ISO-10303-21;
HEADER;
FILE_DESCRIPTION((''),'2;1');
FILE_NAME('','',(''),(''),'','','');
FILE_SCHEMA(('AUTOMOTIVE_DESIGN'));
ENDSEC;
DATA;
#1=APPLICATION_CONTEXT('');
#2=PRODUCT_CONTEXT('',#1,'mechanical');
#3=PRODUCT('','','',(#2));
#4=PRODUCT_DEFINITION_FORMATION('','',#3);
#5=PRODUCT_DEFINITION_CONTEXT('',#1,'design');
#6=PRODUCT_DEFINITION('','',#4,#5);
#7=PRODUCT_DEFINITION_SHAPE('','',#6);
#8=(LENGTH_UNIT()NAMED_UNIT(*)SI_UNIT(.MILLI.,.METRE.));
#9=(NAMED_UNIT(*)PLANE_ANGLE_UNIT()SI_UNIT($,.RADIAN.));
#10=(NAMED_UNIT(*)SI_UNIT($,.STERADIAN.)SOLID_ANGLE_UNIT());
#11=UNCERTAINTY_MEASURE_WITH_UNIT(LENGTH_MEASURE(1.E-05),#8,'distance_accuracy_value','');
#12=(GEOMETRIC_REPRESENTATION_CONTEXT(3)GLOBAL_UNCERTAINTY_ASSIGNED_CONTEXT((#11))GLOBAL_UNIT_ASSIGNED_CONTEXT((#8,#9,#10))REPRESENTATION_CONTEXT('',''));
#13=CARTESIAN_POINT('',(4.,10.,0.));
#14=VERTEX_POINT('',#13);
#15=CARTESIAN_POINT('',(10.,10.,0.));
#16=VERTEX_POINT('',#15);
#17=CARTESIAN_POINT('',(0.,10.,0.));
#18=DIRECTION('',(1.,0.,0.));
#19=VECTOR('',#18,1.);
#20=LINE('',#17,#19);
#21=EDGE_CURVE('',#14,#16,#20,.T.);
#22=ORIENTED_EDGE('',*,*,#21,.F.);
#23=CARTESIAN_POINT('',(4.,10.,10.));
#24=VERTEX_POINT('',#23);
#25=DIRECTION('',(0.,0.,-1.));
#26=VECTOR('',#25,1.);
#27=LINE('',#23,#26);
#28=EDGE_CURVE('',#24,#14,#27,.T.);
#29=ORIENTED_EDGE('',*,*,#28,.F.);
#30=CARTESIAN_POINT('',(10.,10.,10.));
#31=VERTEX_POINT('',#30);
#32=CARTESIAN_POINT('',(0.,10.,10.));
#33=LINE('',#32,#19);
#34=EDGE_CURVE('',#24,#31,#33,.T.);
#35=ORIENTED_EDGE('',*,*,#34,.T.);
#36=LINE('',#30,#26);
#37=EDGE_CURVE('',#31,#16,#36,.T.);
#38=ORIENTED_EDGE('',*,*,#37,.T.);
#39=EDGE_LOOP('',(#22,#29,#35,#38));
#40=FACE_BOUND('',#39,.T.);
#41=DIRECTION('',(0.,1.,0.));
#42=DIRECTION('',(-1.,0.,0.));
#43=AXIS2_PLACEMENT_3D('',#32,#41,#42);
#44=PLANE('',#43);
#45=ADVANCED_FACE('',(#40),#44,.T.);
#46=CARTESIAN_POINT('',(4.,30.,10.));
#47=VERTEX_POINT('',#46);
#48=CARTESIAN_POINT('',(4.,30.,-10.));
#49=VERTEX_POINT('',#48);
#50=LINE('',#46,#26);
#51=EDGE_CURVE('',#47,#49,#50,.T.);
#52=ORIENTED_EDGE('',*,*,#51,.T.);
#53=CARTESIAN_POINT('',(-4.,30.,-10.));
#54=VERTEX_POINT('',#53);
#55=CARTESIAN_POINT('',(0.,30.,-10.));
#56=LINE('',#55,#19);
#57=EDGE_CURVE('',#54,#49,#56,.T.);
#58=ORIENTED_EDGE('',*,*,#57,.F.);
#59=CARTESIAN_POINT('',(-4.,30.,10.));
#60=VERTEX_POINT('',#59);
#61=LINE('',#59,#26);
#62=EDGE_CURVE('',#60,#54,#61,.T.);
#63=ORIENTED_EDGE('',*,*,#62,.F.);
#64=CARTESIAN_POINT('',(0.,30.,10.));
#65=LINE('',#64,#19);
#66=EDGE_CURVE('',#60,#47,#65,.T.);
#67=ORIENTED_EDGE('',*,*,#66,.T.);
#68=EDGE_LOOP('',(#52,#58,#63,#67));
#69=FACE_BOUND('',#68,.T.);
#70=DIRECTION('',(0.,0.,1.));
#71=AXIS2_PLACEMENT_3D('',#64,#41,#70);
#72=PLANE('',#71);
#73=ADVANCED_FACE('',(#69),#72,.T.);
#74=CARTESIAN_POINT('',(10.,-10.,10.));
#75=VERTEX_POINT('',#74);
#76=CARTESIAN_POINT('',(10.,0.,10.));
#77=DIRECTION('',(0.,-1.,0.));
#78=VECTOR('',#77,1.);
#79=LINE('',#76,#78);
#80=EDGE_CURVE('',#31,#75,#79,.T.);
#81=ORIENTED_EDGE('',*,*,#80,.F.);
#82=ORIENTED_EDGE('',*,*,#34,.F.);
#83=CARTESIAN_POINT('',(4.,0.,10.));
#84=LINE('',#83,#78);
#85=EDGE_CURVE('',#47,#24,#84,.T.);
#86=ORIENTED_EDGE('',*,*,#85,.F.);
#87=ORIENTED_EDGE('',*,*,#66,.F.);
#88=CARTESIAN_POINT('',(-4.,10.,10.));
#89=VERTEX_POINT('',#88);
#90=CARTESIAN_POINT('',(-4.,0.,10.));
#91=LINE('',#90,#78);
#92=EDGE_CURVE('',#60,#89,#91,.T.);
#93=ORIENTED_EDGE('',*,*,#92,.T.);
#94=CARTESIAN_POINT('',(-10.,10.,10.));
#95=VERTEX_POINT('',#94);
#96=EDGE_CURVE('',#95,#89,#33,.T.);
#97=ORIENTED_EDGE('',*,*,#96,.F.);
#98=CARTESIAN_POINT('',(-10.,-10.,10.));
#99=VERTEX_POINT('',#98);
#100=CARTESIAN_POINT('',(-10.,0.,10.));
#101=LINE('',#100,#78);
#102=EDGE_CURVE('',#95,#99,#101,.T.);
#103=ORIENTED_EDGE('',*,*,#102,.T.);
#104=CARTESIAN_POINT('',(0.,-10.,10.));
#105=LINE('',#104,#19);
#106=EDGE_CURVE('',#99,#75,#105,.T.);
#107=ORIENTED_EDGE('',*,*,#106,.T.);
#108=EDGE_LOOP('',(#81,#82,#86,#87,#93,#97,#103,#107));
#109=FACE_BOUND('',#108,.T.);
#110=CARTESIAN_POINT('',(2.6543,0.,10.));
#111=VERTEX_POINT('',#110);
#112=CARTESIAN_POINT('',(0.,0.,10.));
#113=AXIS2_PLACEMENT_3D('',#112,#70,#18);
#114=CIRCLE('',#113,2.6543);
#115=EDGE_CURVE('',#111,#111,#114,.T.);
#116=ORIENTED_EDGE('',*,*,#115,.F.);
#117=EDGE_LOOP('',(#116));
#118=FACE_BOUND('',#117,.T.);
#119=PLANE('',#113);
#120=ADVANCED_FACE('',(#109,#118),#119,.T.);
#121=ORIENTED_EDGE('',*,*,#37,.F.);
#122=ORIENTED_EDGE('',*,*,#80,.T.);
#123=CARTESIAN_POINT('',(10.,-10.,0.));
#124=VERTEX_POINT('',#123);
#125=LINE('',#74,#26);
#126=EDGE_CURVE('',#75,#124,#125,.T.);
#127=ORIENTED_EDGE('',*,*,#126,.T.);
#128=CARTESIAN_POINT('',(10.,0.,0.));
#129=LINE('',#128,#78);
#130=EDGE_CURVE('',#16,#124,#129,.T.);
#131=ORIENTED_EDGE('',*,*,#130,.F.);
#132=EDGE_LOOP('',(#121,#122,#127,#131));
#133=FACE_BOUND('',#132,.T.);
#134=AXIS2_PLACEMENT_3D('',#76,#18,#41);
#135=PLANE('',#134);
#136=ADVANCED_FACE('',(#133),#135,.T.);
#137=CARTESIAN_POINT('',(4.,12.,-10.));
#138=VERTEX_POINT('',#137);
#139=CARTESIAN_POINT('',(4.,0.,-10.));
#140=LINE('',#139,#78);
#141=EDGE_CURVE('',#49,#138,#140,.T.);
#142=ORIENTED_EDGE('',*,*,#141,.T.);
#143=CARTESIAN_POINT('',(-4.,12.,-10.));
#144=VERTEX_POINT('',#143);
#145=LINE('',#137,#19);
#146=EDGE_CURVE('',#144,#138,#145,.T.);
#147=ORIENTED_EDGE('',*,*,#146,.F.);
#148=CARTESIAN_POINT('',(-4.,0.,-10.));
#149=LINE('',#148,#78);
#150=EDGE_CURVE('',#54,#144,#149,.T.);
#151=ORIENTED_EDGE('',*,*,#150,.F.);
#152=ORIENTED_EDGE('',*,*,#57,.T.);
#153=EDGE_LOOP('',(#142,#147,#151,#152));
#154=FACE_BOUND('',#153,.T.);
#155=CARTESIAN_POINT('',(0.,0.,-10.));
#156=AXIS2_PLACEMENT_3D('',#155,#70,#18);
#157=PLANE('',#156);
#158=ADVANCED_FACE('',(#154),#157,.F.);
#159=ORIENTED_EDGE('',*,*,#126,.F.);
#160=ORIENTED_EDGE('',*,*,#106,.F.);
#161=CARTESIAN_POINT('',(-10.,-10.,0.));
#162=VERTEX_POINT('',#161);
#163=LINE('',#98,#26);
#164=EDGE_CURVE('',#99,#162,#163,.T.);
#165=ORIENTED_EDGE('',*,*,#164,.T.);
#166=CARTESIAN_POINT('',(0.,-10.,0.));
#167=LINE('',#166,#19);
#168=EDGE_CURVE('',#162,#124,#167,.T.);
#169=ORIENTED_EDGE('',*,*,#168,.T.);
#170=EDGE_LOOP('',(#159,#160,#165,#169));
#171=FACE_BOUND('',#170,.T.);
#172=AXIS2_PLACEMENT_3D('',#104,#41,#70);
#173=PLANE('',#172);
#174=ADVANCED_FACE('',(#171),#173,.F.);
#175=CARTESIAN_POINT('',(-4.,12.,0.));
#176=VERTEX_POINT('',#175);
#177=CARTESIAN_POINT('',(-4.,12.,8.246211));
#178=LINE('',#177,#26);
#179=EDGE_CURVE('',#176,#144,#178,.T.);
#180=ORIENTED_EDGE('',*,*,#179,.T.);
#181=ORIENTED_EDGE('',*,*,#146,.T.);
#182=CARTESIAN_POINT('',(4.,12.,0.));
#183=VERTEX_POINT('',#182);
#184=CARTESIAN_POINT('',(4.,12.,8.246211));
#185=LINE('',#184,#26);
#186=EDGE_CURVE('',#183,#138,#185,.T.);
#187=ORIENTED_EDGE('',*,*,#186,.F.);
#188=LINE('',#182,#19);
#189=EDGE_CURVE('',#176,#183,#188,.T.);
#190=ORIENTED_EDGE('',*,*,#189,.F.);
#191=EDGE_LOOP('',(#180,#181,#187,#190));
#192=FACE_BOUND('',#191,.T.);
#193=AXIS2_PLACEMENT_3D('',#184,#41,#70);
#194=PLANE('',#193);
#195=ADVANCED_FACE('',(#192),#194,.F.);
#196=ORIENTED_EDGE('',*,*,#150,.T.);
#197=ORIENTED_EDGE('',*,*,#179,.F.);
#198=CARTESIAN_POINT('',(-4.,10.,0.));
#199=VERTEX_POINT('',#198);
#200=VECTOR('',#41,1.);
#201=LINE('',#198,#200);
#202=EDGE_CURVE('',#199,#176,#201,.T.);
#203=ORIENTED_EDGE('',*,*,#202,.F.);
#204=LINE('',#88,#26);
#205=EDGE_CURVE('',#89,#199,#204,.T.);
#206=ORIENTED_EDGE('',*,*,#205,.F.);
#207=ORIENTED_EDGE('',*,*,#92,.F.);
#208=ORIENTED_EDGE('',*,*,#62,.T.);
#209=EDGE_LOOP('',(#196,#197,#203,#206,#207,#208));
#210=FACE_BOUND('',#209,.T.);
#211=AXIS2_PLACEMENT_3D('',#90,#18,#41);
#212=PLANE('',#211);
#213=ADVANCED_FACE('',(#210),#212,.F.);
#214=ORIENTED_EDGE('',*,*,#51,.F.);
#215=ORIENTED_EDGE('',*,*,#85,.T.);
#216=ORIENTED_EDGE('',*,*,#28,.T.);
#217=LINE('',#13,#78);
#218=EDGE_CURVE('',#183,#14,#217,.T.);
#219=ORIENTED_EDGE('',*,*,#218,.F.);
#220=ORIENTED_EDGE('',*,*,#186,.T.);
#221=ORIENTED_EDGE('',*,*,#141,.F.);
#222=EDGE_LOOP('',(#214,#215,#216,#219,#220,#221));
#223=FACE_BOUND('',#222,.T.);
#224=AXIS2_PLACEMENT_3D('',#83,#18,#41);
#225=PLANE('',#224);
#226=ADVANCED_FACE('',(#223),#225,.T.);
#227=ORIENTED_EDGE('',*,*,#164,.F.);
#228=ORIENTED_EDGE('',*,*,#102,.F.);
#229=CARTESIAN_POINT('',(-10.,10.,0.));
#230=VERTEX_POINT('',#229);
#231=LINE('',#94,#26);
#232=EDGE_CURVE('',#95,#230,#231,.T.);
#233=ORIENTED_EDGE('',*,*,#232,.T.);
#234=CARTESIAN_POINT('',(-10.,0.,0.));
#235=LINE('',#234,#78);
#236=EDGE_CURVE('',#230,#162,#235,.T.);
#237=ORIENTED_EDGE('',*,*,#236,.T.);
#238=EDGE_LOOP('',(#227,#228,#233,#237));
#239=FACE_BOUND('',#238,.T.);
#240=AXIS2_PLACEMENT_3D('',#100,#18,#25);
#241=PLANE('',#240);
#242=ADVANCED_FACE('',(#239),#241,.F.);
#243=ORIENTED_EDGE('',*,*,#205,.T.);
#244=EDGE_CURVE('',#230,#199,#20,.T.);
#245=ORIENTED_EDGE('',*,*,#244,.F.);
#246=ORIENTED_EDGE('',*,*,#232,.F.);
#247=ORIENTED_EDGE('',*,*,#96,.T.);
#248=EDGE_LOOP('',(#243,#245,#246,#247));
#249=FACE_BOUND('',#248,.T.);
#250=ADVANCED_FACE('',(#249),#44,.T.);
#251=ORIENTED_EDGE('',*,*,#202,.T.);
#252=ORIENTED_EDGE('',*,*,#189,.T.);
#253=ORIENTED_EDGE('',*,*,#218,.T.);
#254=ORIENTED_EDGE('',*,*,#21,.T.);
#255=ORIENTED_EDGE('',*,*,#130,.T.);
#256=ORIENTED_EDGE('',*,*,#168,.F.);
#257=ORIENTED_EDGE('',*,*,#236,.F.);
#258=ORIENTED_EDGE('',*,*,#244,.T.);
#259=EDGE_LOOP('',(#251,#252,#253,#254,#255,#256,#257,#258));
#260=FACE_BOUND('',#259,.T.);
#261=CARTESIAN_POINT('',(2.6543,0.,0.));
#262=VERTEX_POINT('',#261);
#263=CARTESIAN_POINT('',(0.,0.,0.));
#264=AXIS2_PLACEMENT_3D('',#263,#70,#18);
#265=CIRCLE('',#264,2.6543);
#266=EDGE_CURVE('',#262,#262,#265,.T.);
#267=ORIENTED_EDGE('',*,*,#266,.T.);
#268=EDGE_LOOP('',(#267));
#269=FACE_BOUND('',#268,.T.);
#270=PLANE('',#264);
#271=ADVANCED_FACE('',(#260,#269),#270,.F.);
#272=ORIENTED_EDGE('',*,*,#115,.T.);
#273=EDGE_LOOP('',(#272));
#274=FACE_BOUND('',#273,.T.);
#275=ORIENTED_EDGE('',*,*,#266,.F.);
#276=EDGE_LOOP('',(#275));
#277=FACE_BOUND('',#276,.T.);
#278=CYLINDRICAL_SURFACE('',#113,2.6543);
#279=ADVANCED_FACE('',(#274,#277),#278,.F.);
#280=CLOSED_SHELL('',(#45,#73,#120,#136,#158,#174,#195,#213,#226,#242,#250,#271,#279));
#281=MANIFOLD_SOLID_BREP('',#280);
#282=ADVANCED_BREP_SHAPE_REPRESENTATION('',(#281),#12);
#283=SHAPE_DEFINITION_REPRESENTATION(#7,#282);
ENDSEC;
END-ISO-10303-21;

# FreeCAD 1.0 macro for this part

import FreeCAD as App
import Part
import Sketcher
from FreeCAD import Vector

doc = App.newDocument("Part")
body = doc.addObject("PartDesign::Body", "Body")

sketch1 = body.newObject("Sketcher::SketchObject", "Sketch")
sketch1.AttachmentSupport = (doc.getObject("XY_Plane"), [""])
sketch1.MapMode = "FlatFace"
sketch1.addGeometry(Part.LineSegment(Vector(-10, 10, 0), Vector(-10, -10, 0)), False)
sketch1.addGeometry(Part.LineSegment(Vector(-10, -10, 0), Vector(10, -10, 0)), False)
sketch1.addGeometry(Part.LineSegment(Vector(10, -10, 0), Vector(10, 10, 0)), False)
sketch1.addGeometry(Part.LineSegment(Vector(10, 10, 0), Vector(4, 10, 0)), False)
sketch1.addGeometry(Part.LineSegment(Vector(4, 10, 0), Vector(4, 30, 0)), False)
sketch1.addGeometry(Part.LineSegment(Vector(4, 30, 0), Vector(-4, 30, 0)), False)
sketch1.addGeometry(Part.LineSegment(Vector(-4, 30, 0), Vector(-4, 10, 0)), False)
sketch1.addGeometry(Part.LineSegment(Vector(-4, 10, 0), Vector(-10, 10, 0)), False)
sketch1.addConstraint(Sketcher.Constraint("Coincident", 0, 2, 1, 1))
sketch1.addConstraint(Sketcher.Constraint("Coincident", 1, 2, 2, 1))
sketch1.addConstraint(Sketcher.Constraint("Coincident", 2, 2, 3, 1))
sketch1.addConstraint(Sketcher.Constraint("Coincident", 3, 2, 4, 1))
sketch1.addConstraint(Sketcher.Constraint("Coincident", 4, 2, 5, 1))
sketch1.addConstraint(Sketcher.Constraint("Coincident", 5, 2, 6, 1))
sketch1.addConstraint(Sketcher.Constraint("Coincident", 6, 2, 7, 1))
sketch1.addConstraint(Sketcher.Constraint("Coincident", 7, 2, 0, 1))
sketch1.addConstraint(Sketcher.Constraint("Vertical", 0))
sketch1.addConstraint(Sketcher.Constraint("Horizontal", 1))
sketch1.addConstraint(Sketcher.Constraint("Vertical", 2))
sketch1.addConstraint(Sketcher.Constraint("Horizontal", 3))
sketch1.addConstraint(Sketcher.Constraint("Vertical", 4))
sketch1.addConstraint(Sketcher.Constraint("Horizontal", 5))
sketch1.addConstraint(Sketcher.Constraint("Vertical", 6))
sketch1.addConstraint(Sketcher.Constraint("Horizontal", 7))
sketch1.addConstraint(Sketcher.Constraint("Symmetric", 0, 2, 2, 2, -1, 1))
sketch1.addConstraint(Sketcher.Constraint("Symmetric", 3, 2, 6, 2, -2))
sketch1.addConstraint(Sketcher.Constraint("Equal", 1, 0))
sketch1.addConstraint(Sketcher.Constraint("Equal", 2, 4))
sketch1.addConstraint(Sketcher.Constraint("DistanceX", 1, 1, 1, 2, 20.0))
sketch1.addConstraint(Sketcher.Constraint("DistanceX", 3, 2, 3, 1, 6.0))
pad1 = body.newObject("PartDesign::Pad", "Pad")
pad1.Profile = sketch1
pad1.Length = 10

sketch2 = body.newObject("Sketcher::SketchObject", "Sketch001")
sketch2.AttachmentSupport = (doc.getObject("XY_Plane"), [""])
sketch2.MapMode = "FlatFace"
sketch2.AttachmentOffset = App.Placement(Vector(0, 0, 10), App.Rotation())
sketch2.addGeometry(Part.Circle(Vector(0, 0, 0), Vector(0, 0, 1), 2.7), False)
sketch2.addConstraint(Sketcher.Constraint("Coincident", 0, 3, -1, 1))
sketch2.addConstraint(Sketcher.Constraint("Diameter", 0, 5.3086))
doc.recompute()
hole = body.newObject("PartDesign::Hole", "Hole")
hole.Profile = sketch2
hole.ThreadType = "None"
hole.Diameter = 5.3086
hole.DepthType = "ThroughAll"

sketch3 = body.newObject("Sketcher::SketchObject", "Sketch002")
sketch3.AttachmentSupport = (doc.getObject("XY_Plane"), [""])
sketch3.MapMode = "FlatFace"
sketch3.addGeometry(Part.LineSegment(Vector(-4, 30, 0), Vector(-4, 10, 0)), False)
sketch3.addGeometry(Part.LineSegment(Vector(-4, 10, 0), Vector(4, 10, 0)), False)
sketch3.addGeometry(Part.LineSegment(Vector(4, 10, 0), Vector(4, 30, 0)), False)
sketch3.addGeometry(Part.LineSegment(Vector(4, 30, 0), Vector(-4, 30, 0)), False)
sketch3.addConstraint(Sketcher.Constraint("Coincident", 0, 2, 1, 1))
sketch3.addConstraint(Sketcher.Constraint("Coincident", 1, 2, 2, 1))
sketch3.addConstraint(Sketcher.Constraint("Coincident", 2, 2, 3, 1))
sketch3.addConstraint(Sketcher.Constraint("Coincident", 3, 2, 0, 1))
sketch3.addConstraint(Sketcher.Constraint("Vertical", 0))
sketch3.addConstraint(Sketcher.Constraint("Horizontal", 1))
sketch3.addConstraint(Sketcher.Constraint("Vertical", 2))
sketch3.addConstraint(Sketcher.Constraint("Horizontal", 3))
sketch3.addConstraint(Sketcher.Constraint("DistanceX", 1, 1, 1, 2, 8.0))
sketch3.addConstraint(Sketcher.Constraint("DistanceY", 0, 2, 0, 1, 20.0))
sketch3.addConstraint(Sketcher.Constraint("DistanceX", 0, 2, -1, 1, 4.0))
sketch3.addConstraint(Sketcher.Constraint("DistanceY", -1, 1, 0, 2, 10.0))
pad2 = body.newObject("PartDesign::Pad", "Pad001")
pad2.Profile = sketch3
pad2.Length = 10
pad2.Reversed = True

sketch4 = body.newObject("Sketcher::SketchObject", "Sketch003")
sketch4.AttachmentSupport = (doc.getObject("XY_Plane"), [""])
sketch4.MapMode = "FlatFace"
sketch4.AttachmentOffset = App.Placement(Vector(0, 0, -10), App.Rotation())
sketch4.addGeometry(Part.LineSegment(Vector(4, 12, 0), Vector(4, 10, 0)), False)
sketch4.addGeometry(Part.LineSegment(Vector(4, 10, 0), Vector(-4, 10, 0)), False)
sketch4.addGeometry(Part.LineSegment(Vector(-4, 10, 0), Vector(-4, 12, 0)), False)
sketch4.addGeometry(Part.LineSegment(Vector(-4, 12, 0), Vector(4, 12, 0)), False)
sketch4.addConstraint(Sketcher.Constraint("Coincident", 0, 2, 1, 1))
sketch4.addConstraint(Sketcher.Constraint("Coincident", 1, 2, 2, 1))
sketch4.addConstraint(Sketcher.Constraint("Coincident", 2, 2, 3, 1))
sketch4.addConstraint(Sketcher.Constraint("Coincident", 3, 2, 0, 1))
sketch4.addConstraint(Sketcher.Constraint("Vertical", 0))
sketch4.addConstraint(Sketcher.Constraint("Horizontal", 1))
sketch4.addConstraint(Sketcher.Constraint("Vertical", 2))
sketch4.addConstraint(Sketcher.Constraint("Horizontal", 3))
sketch4.addConstraint(Sketcher.Constraint("DistanceX", 1, 2, 1, 1, 8.0))
sketch4.addConstraint(Sketcher.Constraint("DistanceY", 0, 2, 0, 1, 2.0))
sketch4.addConstraint(Sketcher.Constraint("DistanceX", -1, 1, 0, 2, 4.0))
sketch4.addConstraint(Sketcher.Constraint("DistanceY", -1, 1, 0, 2, 10.0))
pocket1 = body.newObject("PartDesign::Pocket", "Pocket")
pocket1.Profile = sketch4
pocket1.Length = 10
pocket1.Reversed = True

doc.recompute()
